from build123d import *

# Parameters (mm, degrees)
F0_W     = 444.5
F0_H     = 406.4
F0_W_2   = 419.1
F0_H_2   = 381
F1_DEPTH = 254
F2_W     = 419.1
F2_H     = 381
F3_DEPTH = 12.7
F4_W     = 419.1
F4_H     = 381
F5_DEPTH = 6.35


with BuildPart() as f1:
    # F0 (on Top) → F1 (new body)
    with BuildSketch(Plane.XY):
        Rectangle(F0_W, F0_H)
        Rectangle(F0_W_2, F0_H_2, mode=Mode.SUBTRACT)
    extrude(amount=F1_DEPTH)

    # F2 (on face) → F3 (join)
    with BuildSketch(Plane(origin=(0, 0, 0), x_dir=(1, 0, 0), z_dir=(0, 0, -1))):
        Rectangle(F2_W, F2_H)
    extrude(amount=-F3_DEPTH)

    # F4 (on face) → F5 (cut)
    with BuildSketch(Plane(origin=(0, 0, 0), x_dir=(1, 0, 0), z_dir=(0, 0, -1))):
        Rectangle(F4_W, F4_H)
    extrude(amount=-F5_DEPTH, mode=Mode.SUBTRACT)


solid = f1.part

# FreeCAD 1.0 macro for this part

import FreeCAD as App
import Part
import Sketcher
from FreeCAD import Vector
Q = App.Units.Quantity


def add_polygon(sketch, points):
    """Adds a closed chain of lines whose ends are joined by coincident constraints."""
    first, n = sketch.GeometryCount, len(points)
    for a, b in zip(points, points[1:] + points[:1]):
        sketch.addGeometry(Part.LineSegment(App.Vector(*a, 0), App.Vector(*b, 0)), False)
    for i in range(n):
        sketch.addConstraint(Sketcher.Constraint("Coincident", first + i, 2, first + (i + 1) % n, 1))

doc = App.newDocument("Part")
params = doc.addObject("Spreadsheet::Sheet", "Params")
for row, (alias, value) in enumerate([
    ("sketch1_height", "16 in"),
    ("sketch1_height2", "15 in"),
    ("sketch1_width", "17.5 in"),
    ("sketch1_width2", "16.5 in"),
    ("pad1_length", "10 in"),
    ("sketch2_height", "15 in"),
    ("sketch2_width", "16.5 in"),
    ("pad2_length", "0.5 in"),
    ("sketch3_height", "15 in"),
    ("sketch3_width", "16.5 in"),
    ("pocket1_length", "0.25 in"),
], start=1):
    params.set(f"A{row}", alias)
    params.set(f"B{row}", "=" + value)
    params.setAlias(f"B{row}", alias)

body = doc.addObject("PartDesign::Body", "Body")

# Sketch on XY plane
sketch1 = doc.addObject("Sketcher::SketchObject", "Sketch")
body.addObject(sketch1)
sketch1.AttachmentSupport = (doc.XY_Plane, [""])
sketch1.MapMode = "FlatFace"
add_polygon(sketch1, [(-222, 203), (-222, -203), (222, -203), (222, 203)])  # lines 0-3
add_polygon(sketch1, [(210, -190), (-210, -190), (-210, 190), (210, 190)])  # lines 4-7
sketch1.addConstraint(Sketcher.Constraint("Vertical", 0))
sketch1.addConstraint(Sketcher.Constraint("Horizontal", 1))
sketch1.addConstraint(Sketcher.Constraint("Vertical", 2))
sketch1.addConstraint(Sketcher.Constraint("Horizontal", 3))
sketch1.addConstraint(Sketcher.Constraint("Horizontal", 4))
sketch1.addConstraint(Sketcher.Constraint("Vertical", 5))
sketch1.addConstraint(Sketcher.Constraint("Horizontal", 6))
sketch1.addConstraint(Sketcher.Constraint("Vertical", 7))
sketch1.addConstraint(Sketcher.Constraint("Symmetric", 0, 2, 2, 2, -1, 1))
sketch1.addConstraint(Sketcher.Constraint("Symmetric", 4, 2, 6, 2, -1, 1))
sketch1.addConstraint(Sketcher.Constraint("DistanceY", 0, 2, 0, 1, Q("16 in")))
sketch1.addConstraint(Sketcher.Constraint("DistanceY", 5, 1, 5, 2, Q("15 in")))
sketch1.addConstraint(Sketcher.Constraint("DistanceX", 1, 1, 1, 2, Q("17.5 in")))
sketch1.addConstraint(Sketcher.Constraint("DistanceX", 4, 2, 4, 1, Q("16.5 in")))
sketch1.setExpression("Constraints[18]", "Params.sketch1_height")
sketch1.setExpression("Constraints[19]", "Params.sketch1_height2")
sketch1.setExpression("Constraints[20]", "Params.sketch1_width")
sketch1.setExpression("Constraints[21]", "Params.sketch1_width2")
pad1 = doc.addObject("PartDesign::Pad", "Pad")
body.addObject(pad1)
pad1.Profile = sketch1
pad1.setExpression("Length", "Params.pad1_length")

# Sketch on XY plane
sketch2 = doc.addObject("Sketcher::SketchObject", "Sketch001")
body.addObject(sketch2)
sketch2.AttachmentSupport = (doc.XY_Plane, [""])
sketch2.MapMode = "FlatFace"
add_polygon(sketch2, [(-210, -190), (-210, 190), (210, 190), (210, -190)])  # lines 0-3
sketch2.addConstraint(Sketcher.Constraint("Vertical", 0))
sketch2.addConstraint(Sketcher.Constraint("Horizontal", 1))
sketch2.addConstraint(Sketcher.Constraint("Vertical", 2))
sketch2.addConstraint(Sketcher.Constraint("Horizontal", 3))
sketch2.addConstraint(Sketcher.Constraint("Symmetric", 0, 2, 2, 2, -1, 1))
sketch2.addConstraint(Sketcher.Constraint("DistanceY", 0, 1, 0, 2, Q("15 in")))
sketch2.addConstraint(Sketcher.Constraint("DistanceX", 1, 1, 1, 2, Q("16.5 in")))
sketch2.setExpression("Constraints[9]", "Params.sketch2_height")
sketch2.setExpression("Constraints[10]", "Params.sketch2_width")
pad2 = doc.addObject("PartDesign::Pad", "Pad001")
body.addObject(pad2)
pad2.Profile = sketch2
pad2.setExpression("Length", "Params.pad2_length")

# Sketch on XY plane
sketch3 = doc.addObject("Sketcher::SketchObject", "Sketch002")
body.addObject(sketch3)
sketch3.AttachmentSupport = (doc.XY_Plane, [""])
sketch3.MapMode = "FlatFace"
add_polygon(sketch3, [(-210, -190), (-210, 190), (210, 190), (210, -190)])  # lines 0-3
sketch3.addConstraint(Sketcher.Constraint("Vertical", 0))
sketch3.addConstraint(Sketcher.Constraint("Horizontal", 1))
sketch3.addConstraint(Sketcher.Constraint("Vertical", 2))
sketch3.addConstraint(Sketcher.Constraint("Horizontal", 3))
sketch3.addConstraint(Sketcher.Constraint("Symmetric", 0, 2, 2, 2, -1, 1))
sketch3.addConstraint(Sketcher.Constraint("DistanceY", 0, 1, 0, 2, Q("15 in")))
sketch3.addConstraint(Sketcher.Constraint("DistanceX", 1, 1, 1, 2, Q("16.5 in")))
sketch3.setExpression("Constraints[9]", "Params.sketch3_height")
sketch3.setExpression("Constraints[10]", "Params.sketch3_width")
pocket1 = doc.addObject("PartDesign::Pocket", "Pocket")
body.addObject(pocket1)
pocket1.Profile = sketch3
pocket1.setExpression("Length", "Params.pocket1_length")
pocket1.Reversed = True

doc.recompute()
